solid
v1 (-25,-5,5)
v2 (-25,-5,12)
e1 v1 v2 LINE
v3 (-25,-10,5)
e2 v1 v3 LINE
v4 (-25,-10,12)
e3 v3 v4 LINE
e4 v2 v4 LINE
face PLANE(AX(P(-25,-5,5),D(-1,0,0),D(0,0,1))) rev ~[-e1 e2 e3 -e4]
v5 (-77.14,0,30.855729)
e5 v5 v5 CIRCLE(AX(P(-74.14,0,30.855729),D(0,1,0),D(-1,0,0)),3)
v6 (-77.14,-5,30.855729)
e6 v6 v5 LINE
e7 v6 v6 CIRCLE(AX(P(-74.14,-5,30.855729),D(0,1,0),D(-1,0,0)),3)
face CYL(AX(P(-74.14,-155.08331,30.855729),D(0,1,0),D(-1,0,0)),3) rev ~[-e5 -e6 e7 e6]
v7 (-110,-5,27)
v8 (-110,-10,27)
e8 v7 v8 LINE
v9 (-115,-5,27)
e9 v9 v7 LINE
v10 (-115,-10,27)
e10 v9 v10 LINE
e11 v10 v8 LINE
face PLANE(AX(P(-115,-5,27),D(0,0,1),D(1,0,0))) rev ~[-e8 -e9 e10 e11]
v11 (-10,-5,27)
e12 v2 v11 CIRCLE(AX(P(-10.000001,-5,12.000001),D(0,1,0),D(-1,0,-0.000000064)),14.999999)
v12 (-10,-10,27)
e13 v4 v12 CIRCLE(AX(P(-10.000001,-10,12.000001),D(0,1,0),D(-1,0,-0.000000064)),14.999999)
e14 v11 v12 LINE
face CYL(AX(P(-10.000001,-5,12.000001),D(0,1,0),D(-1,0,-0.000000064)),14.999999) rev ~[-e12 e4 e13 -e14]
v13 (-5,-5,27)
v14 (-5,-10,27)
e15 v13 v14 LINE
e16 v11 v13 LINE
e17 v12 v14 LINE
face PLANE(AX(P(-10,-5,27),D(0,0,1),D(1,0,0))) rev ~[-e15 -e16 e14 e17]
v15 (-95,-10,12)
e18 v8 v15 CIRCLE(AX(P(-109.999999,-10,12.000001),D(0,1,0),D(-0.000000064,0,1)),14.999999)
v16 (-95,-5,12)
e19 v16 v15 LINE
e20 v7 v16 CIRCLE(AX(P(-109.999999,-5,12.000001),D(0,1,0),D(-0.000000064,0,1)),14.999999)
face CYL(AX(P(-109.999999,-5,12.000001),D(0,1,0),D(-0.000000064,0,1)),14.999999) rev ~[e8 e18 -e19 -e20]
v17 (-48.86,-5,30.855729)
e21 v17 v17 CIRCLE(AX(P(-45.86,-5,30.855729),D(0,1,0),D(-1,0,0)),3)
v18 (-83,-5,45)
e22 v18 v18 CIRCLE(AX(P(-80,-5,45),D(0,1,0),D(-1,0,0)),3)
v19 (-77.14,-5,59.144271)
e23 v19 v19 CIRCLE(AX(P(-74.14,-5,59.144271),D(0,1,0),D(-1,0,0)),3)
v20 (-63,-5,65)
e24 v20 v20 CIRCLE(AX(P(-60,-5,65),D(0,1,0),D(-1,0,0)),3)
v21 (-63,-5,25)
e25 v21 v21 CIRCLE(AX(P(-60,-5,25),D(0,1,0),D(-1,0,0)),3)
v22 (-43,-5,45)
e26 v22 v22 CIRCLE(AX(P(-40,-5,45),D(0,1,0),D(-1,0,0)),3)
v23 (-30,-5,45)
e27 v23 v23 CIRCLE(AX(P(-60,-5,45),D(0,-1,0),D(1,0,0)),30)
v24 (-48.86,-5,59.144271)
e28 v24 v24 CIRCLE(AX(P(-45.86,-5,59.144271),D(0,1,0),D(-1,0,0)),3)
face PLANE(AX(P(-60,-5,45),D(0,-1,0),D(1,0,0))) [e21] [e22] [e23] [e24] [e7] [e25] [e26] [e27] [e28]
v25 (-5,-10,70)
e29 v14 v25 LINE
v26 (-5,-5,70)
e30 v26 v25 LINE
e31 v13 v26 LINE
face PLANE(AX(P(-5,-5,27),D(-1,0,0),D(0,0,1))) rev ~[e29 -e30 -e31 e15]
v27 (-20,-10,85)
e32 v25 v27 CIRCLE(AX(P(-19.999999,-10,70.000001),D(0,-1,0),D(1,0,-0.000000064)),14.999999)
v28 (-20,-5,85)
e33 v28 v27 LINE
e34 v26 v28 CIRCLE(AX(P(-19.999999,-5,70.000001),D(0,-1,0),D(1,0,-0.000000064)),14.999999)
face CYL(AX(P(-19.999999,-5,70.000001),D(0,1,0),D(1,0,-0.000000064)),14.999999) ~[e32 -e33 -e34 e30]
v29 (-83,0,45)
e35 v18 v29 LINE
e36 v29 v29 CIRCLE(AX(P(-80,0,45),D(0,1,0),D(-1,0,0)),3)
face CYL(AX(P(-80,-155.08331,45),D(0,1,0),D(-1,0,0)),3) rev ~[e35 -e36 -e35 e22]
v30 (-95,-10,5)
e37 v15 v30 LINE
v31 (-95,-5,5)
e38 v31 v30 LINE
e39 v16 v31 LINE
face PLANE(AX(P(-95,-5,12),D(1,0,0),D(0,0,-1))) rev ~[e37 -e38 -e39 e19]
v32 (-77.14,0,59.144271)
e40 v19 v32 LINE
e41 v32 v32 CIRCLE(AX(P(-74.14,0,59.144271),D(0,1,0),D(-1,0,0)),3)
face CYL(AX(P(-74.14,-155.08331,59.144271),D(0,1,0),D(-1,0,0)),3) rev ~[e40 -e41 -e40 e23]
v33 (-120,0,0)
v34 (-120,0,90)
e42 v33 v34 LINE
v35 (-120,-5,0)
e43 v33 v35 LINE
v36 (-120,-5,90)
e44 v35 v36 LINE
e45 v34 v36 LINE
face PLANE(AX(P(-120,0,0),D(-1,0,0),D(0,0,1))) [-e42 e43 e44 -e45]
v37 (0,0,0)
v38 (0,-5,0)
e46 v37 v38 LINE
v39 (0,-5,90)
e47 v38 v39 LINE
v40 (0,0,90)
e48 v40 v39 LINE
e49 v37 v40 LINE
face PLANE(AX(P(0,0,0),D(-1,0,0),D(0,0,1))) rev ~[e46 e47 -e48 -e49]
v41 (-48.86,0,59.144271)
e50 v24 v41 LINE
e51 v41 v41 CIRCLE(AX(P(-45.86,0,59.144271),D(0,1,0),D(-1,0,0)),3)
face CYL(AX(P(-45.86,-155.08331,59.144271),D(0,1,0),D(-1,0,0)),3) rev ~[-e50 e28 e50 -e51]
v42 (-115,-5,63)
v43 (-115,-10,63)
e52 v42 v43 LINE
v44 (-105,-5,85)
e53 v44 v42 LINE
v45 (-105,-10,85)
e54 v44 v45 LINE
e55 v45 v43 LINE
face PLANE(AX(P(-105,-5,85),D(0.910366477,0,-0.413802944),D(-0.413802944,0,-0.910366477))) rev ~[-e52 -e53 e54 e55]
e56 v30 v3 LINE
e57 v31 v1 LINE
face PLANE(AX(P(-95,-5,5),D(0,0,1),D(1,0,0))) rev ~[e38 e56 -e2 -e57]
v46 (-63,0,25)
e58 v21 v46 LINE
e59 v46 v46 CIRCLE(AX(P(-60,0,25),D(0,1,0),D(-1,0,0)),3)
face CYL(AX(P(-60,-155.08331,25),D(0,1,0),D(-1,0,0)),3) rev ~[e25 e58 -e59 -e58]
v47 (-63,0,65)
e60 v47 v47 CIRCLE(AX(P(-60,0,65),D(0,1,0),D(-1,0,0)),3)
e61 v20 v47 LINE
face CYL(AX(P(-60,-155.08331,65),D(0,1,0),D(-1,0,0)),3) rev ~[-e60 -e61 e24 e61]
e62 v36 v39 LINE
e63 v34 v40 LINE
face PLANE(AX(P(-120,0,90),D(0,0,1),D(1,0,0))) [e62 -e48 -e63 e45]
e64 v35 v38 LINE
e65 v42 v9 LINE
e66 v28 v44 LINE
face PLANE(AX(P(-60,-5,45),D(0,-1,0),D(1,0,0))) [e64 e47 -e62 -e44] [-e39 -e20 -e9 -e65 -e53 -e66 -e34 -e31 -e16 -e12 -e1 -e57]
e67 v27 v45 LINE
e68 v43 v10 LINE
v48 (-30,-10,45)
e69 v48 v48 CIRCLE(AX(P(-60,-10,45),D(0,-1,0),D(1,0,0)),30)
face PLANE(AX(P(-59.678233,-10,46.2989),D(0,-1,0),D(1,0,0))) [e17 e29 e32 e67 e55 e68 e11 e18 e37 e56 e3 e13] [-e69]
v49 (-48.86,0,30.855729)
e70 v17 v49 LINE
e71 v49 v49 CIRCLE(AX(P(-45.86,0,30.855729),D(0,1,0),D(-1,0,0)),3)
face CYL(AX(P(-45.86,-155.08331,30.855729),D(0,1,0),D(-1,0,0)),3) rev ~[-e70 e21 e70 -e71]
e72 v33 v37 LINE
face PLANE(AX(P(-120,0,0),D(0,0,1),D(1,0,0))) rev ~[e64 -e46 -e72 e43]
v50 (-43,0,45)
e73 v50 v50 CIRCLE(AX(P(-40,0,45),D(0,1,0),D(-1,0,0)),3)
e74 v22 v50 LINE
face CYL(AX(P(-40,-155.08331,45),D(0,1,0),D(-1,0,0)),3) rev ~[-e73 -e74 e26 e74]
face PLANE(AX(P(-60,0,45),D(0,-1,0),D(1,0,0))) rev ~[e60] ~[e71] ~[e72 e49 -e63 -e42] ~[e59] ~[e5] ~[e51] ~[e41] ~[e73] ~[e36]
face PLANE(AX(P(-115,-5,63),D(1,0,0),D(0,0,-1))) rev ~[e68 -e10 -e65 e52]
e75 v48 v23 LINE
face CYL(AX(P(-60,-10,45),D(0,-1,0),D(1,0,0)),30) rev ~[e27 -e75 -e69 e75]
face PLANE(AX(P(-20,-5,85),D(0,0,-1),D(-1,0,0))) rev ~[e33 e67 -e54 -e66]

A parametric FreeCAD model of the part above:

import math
import FreeCAD as App
import Part
import Sketcher
Q = App.Units.Quantity


def add_polygon(sketch, points):
    """Adds a closed chain of lines whose ends are joined by coincident constraints."""
    first, n = sketch.GeometryCount, len(points)
    for a, b in zip(points, points[1:] + points[:1]):
        sketch.addGeometry(Part.LineSegment(App.Vector(*a, 0), App.Vector(*b, 0)), False)
    for i in range(n):
        sketch.addConstraint(Sketcher.Constraint("Coincident", first + i, 2, first + (i + 1) % n, 1))

doc = App.newDocument("Part")
body = doc.addObject("PartDesign::Body", "Body")

# Sketch on XZ plane
sketch1 = body.newObject("Sketcher::SketchObject", "Sketch")
sketch1.AttachmentSupport = (doc.getObject("XZ_Plane"), [""])
sketch1.MapMode = "FlatFace"
add_polygon(sketch1, [(-120, 90), (-120, 0), (0, 0), (0, 90)])  # lines 0-3
sketch1.addConstraint([
    Sketcher.Constraint("Vertical", 0),
    Sketcher.Constraint("Horizontal", 1),
    Sketcher.Constraint("Vertical", 2),
    Sketcher.Constraint("Horizontal", 3),
    Sketcher.Constraint("Coincident", 1, 2, -1, 1),
    Sketcher.Constraint("DistanceX", 1, 1, 1, 2, Q("120 mm")),
    Sketcher.Constraint("DistanceY", 0, 2, 0, 1, Q("90 mm")),
])
pad1 = body.newObject("PartDesign::Pad", "Pad")
pad1.Profile = sketch1
pad1.Length = 5

# Sketch on XZ plane
sketch2 = body.newObject("Sketcher::SketchObject", "Sketch001")
sketch2.AttachmentSupport = (doc.getObject("XZ_Plane"), [""])
sketch2.MapMode = "FlatFace"
sketch2.AttachmentOffset = App.Placement(App.Vector(0, 0, 5), App.Rotation())
sketch2.addGeometry([
    Part.Circle(App.Vector(-60, 65, 0), App.Vector(0, 0, 1), 3),  # 0
    Part.Circle(App.Vector(-74.1, 59.1, 0), App.Vector(0, 0, 1), 3),  # 1
    Part.Circle(App.Vector(-80, 45, 0), App.Vector(0, 0, 1), 3),  # 2
    Part.Circle(App.Vector(-74.1, 30.9, 0), App.Vector(0, 0, 1), 3),  # 3
    Part.Circle(App.Vector(-60, 25, 0), App.Vector(0, 0, 1), 3),  # 4
    Part.Circle(App.Vector(-45.9, 30.9, 0), App.Vector(0, 0, 1), 3),  # 5
    Part.Circle(App.Vector(-40, 45, 0), App.Vector(0, 0, 1), 3),  # 6
    Part.Circle(App.Vector(-45.9, 59.1, 0), App.Vector(0, 0, 1), 3),  # 7
], False)
sketch2.addConstraint([
    Sketcher.Constraint("Equal", 0, 1),
    Sketcher.Constraint("Equal", 1, 2),
    Sketcher.Constraint("Equal", 2, 3),
    Sketcher.Constraint("Equal", 3, 4),
    Sketcher.Constraint("Equal", 4, 5),
    Sketcher.Constraint("Equal", 5, 6),
    Sketcher.Constraint("Equal", 6, 7),
    Sketcher.Constraint("Horizontal", 3, 3, 5, 3),
    Sketcher.Constraint("Horizontal", 2, 3, 6, 3),
    Sketcher.Constraint("Horizontal", 1, 3, 7, 3),
    Sketcher.Constraint("Vertical", 1, 3, 3, 3),
    Sketcher.Constraint("Vertical", 0, 3, 4, 3),
    Sketcher.Constraint("Vertical", 5, 3, 7, 3),
    Sketcher.Constraint("Diameter", 0, Q("6 mm")),
    Sketcher.Constraint("DistanceX", 0, 3, -1, 1, Q("60 mm")),
    Sketcher.Constraint("DistanceY", -1, 1, 0, 3, Q("65 mm")),
    Sketcher.Constraint("DistanceX", 2, 3, -1, 1, Q("80 mm")),
    Sketcher.Constraint("DistanceY", -1, 1, 2, 3, Q("45 mm")),
    Sketcher.Constraint("DistanceY", -1, 1, 4, 3, Q("25 mm")),
    Sketcher.Constraint("DistanceX", 6, 3, -1, 1, Q("40 mm")),
    Sketcher.Constraint("DistanceX", 1, 3, -1, 1, Q("74.14 mm")),
    Sketcher.Constraint("DistanceX", 5, 3, -1, 1, Q("45.86 mm")),
    Sketcher.Constraint("DistanceY", -1, 1, 1, 3, Q("59.144271 mm")),
    Sketcher.Constraint("DistanceY", -1, 1, 3, 3, Q("30.855729 mm")),
])
doc.recompute()
hole = body.newObject("PartDesign::Hole", "Hole")
hole.Profile = sketch2
hole.ThreadType = "None"
hole.Diameter = 6
hole.DepthType = "ThroughAll"

# Sketch on XZ plane
sketch3 = body.newObject("Sketcher::SketchObject", "Sketch002")
sketch3.AttachmentSupport = (doc.getObject("XZ_Plane"), [""])
sketch3.MapMode = "FlatFace"
sketch3.AttachmentOffset = App.Placement(App.Vector(0, 0, 5), App.Rotation())
sketch3.addGeometry([
    Part.LineSegment(App.Vector(-95, 5, 0), App.Vector(-25, 5, 0)),  # 0
    Part.LineSegment(App.Vector(-25, 5, 0), App.Vector(-25, 12, 0)),  # 1
    Part.ArcOfCircle(Part.Circle(App.Vector(-10, 12, 0), App.Vector(0, 0, 1), 15), math.radians(90), math.radians(180)),  # 2
    Part.LineSegment(App.Vector(-10, 27, 0), App.Vector(-5, 27, 0)),  # 3
    Part.LineSegment(App.Vector(-5, 27, 0), App.Vector(-5, 70, 0)),  # 4
    Part.ArcOfCircle(Part.Circle(App.Vector(-20, 70, 0), App.Vector(0, 0, 1), 15), math.radians(0), math.radians(90)),  # 5
    Part.LineSegment(App.Vector(-20, 85, 0), App.Vector(-105, 85, 0)),  # 6
    Part.LineSegment(App.Vector(-105, 85, 0), App.Vector(-115, 63, 0)),  # 7
    Part.LineSegment(App.Vector(-115, 63, 0), App.Vector(-115, 27, 0)),  # 8
    Part.LineSegment(App.Vector(-115, 27, 0), App.Vector(-110, 27, 0)),  # 9
    Part.ArcOfCircle(Part.Circle(App.Vector(-110, 12, 0), App.Vector(0, 0, 1), 15), math.radians(0), math.radians(90)),  # 10
    Part.LineSegment(App.Vector(-95, 12, 0), App.Vector(-95, 5, 0)),  # 11
], False)
sketch3.addConstraint([
    Sketcher.Constraint("Coincident", 0, 2, 1, 1),
    Sketcher.Constraint("Tangent", 1, 2, 2, 2),
    Sketcher.Constraint("Tangent", 2, 1, 3, 1),
    Sketcher.Constraint("Coincident", 3, 2, 4, 1),
    Sketcher.Constraint("Tangent", 4, 2, 5, 1),
    Sketcher.Constraint("Tangent", 5, 2, 6, 1),
    Sketcher.Constraint("Coincident", 6, 2, 7, 1),
    Sketcher.Constraint("Coincident", 7, 2, 8, 1),
    Sketcher.Constraint("Coincident", 8, 2, 9, 1),
    Sketcher.Constraint("Tangent", 9, 2, 10, 2),
    Sketcher.Constraint("Tangent", 10, 1, 11, 1),
    Sketcher.Constraint("Coincident", 11, 2, 0, 1),
    Sketcher.Constraint("Horizontal", 0),
    Sketcher.Constraint("Vertical", 1),
    Sketcher.Constraint("Horizontal", 3),
    Sketcher.Constraint("Vertical", 4),
    Sketcher.Constraint("Horizontal", 6),
    Sketcher.Constraint("Vertical", 8),
    Sketcher.Constraint("Horizontal", 9),
    Sketcher.Constraint("Vertical", 11),
    Sketcher.Constraint("Equal", 2, 5),
    Sketcher.Constraint("Equal", 5, 10),
    Sketcher.Constraint("Horizontal", 2, 3, 10, 3),
    Sketcher.Constraint("Equal", 3, 9),
    Sketcher.Constraint("Radius", 2, Q("14.999999 mm")),
    Sketcher.Constraint("DistanceX", 0, 1, 0, 2, Q("70 mm")),
    Sketcher.Constraint("DistanceX", 3, 1, 3, 2, Q("5 mm")),
    Sketcher.Constraint("DistanceX", 6, 2, 6, 1, Q("85 mm")),
    Sketcher.Constraint("DistanceY", 1, 1, 1, 2, Q("7 mm")),
    Sketcher.Constraint("DistanceY", 4, 1, 4, 2, Q("43 mm")),
    Sketcher.Constraint("DistanceY", 8, 2, 8, 1, Q("36 mm")),
    Sketcher.Constraint("DistanceX", 2, 3, -1, 1, Q("10.000001 mm")),
    Sketcher.Constraint("DistanceY", -1, 1, 2, 3, Q("12.000001 mm")),
])
pad2 = body.newObject("PartDesign::Pad", "Pad001")
pad2.Profile = sketch3
pad2.Length = 5

# Sketch on XZ plane
sketch4 = body.newObject("Sketcher::SketchObject", "Sketch003")
sketch4.AttachmentSupport = (doc.getObject("XZ_Plane"), [""])
sketch4.MapMode = "FlatFace"
sketch4.AttachmentOffset = App.Placement(App.Vector(0, 0, 10), App.Rotation())
sketch4.addGeometry(Part.Circle(App.Vector(-60, 45, 0), App.Vector(0, 0, 1), 30), False)
sketch4.addConstraint([
    Sketcher.Constraint("Diameter", 0, Q("60 mm")),
    Sketcher.Constraint("DistanceX", 0, 3, -1, 1, Q("60 mm")),
    Sketcher.Constraint("DistanceY", -1, 1, 0, 3, Q("45 mm")),
])
pocket1 = body.newObject("PartDesign::Pocket", "Pocket")
pocket1.Profile = sketch4
pocket1.Length = 5

doc.recompute()
